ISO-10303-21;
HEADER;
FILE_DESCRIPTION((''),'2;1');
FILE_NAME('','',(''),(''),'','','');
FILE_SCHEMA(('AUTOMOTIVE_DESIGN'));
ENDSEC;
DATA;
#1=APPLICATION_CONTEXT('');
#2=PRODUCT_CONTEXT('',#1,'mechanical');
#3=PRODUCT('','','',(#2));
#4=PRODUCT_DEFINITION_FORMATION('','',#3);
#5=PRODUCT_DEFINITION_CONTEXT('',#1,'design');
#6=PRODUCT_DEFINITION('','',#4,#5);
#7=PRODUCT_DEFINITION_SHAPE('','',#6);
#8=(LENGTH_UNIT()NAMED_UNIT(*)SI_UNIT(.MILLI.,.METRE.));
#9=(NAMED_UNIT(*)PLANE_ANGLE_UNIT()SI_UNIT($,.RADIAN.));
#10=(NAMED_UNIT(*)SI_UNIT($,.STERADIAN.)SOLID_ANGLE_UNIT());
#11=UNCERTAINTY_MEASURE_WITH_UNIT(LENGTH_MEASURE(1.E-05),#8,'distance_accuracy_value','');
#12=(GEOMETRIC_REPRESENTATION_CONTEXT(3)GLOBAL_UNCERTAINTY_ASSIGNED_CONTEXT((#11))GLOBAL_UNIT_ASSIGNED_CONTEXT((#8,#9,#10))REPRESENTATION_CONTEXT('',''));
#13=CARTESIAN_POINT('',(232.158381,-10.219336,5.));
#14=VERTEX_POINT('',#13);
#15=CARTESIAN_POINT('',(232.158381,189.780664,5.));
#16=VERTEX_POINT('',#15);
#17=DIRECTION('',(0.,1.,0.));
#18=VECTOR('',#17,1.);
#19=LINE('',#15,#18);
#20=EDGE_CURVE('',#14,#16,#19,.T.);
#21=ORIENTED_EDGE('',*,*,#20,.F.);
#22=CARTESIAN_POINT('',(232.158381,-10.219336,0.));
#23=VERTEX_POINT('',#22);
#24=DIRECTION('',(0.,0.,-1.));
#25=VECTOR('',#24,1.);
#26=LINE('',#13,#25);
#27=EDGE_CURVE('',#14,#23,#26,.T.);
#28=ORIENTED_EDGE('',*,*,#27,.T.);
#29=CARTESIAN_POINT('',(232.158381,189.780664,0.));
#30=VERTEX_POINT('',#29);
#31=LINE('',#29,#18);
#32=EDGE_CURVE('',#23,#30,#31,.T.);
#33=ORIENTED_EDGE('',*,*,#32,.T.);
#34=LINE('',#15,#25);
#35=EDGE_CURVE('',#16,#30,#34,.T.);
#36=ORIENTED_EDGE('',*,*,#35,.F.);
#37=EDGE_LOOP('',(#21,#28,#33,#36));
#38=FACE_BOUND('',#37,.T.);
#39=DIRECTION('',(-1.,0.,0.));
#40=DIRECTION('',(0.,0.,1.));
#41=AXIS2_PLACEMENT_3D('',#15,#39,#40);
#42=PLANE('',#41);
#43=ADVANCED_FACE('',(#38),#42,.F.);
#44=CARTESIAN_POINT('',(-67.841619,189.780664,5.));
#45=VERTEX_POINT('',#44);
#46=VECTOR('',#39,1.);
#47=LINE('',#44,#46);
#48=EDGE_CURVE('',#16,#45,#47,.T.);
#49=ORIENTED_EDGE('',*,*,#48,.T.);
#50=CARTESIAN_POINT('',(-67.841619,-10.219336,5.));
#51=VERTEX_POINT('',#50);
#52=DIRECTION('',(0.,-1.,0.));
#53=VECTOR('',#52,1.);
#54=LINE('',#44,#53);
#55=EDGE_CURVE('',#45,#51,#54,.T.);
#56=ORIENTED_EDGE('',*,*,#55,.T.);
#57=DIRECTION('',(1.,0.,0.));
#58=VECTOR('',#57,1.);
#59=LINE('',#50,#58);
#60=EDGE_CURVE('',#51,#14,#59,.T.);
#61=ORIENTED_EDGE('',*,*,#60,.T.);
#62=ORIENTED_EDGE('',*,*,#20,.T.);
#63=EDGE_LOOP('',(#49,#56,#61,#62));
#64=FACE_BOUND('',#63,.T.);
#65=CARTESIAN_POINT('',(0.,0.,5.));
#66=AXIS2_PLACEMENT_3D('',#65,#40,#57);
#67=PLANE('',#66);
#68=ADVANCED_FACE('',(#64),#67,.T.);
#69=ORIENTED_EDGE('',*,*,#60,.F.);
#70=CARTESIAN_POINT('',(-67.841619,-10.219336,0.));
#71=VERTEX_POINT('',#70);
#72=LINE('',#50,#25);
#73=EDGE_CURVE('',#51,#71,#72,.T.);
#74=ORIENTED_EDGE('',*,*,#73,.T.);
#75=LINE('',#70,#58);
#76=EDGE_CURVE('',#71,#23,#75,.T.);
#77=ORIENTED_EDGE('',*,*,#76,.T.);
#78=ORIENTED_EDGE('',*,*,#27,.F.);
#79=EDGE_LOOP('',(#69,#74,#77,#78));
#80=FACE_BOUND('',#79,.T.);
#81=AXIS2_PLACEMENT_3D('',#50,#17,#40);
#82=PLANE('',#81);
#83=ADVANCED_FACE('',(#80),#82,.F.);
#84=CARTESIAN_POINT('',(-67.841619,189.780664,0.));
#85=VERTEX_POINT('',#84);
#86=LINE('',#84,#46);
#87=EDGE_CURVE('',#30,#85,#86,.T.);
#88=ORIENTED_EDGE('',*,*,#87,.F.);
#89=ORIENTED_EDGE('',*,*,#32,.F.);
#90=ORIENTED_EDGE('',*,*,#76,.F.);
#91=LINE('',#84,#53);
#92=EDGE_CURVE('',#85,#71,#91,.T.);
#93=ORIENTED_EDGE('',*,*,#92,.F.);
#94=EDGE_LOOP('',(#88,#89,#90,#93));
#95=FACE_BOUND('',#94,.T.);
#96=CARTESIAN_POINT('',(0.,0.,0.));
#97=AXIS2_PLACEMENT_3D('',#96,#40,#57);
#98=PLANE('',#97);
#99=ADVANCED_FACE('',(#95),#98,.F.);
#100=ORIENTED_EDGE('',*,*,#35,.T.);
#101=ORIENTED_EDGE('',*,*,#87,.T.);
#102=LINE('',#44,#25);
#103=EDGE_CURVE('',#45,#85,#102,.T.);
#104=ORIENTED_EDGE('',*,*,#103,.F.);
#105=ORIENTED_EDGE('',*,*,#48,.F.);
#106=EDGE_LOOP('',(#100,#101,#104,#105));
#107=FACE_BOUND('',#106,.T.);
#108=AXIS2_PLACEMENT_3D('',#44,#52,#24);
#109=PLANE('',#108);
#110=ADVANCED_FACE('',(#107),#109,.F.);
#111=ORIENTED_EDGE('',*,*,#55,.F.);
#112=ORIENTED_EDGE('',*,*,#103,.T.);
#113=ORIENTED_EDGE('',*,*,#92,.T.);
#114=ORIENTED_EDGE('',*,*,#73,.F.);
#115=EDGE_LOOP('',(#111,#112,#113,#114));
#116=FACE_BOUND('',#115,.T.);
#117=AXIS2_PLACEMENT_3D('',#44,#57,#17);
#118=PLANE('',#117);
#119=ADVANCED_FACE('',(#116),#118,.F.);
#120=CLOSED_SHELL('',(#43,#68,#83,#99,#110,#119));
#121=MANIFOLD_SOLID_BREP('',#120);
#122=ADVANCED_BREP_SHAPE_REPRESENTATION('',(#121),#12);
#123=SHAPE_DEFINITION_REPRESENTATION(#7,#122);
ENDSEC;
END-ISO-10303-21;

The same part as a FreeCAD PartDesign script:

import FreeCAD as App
import Part
import Sketcher
from FreeCAD import Vector
Q = App.Units.Quantity

doc = App.newDocument("Part")
params = doc.addObject("Spreadsheet::Sheet", "Params")
for row, (alias, value) in enumerate([
    ("sketch1_width", "300 mm"),
    ("sketch1_height", "200 mm"),
    ("pad1_length", "5 mm"),
], start=1):
    params.set(f"A{row}", alias)
    params.set(f"B{row}", "=" + value)
    params.setAlias(f"B{row}", alias)

body = doc.addObject("PartDesign::Body", "Body")

# Sketch on XY plane
sketch1 = body.newObject("Sketcher::SketchObject", "Sketch")
sketch1.AttachmentSupport = (doc.getObject("XY_Plane"), [""])
sketch1.MapMode = "FlatFace"
sketch1.addGeometry([
    Part.LineSegment(Vector(-67.841619, 189.780664, 0), Vector(-67.841619, -10.219336, 0)),
    Part.LineSegment(Vector(-67.841619, -10.219336, 0), Vector(232.158381, -10.219336, 0)),
    Part.LineSegment(Vector(232.158381, -10.219336, 0), Vector(232.158381, 189.780664, 0)),
    Part.LineSegment(Vector(232.158381, 189.780664, 0), Vector(-67.841619, 189.780664, 0)),
], False)
sketch1.addConstraint([
    Sketcher.Constraint("Coincident", 0, 2, 1, 1),
    Sketcher.Constraint("Coincident", 1, 2, 2, 1),
    Sketcher.Constraint("Coincident", 2, 2, 3, 1),
    Sketcher.Constraint("Coincident", 3, 2, 0, 1),
    Sketcher.Constraint("Vertical", 0),
    Sketcher.Constraint("Horizontal", 1),
    Sketcher.Constraint("Vertical", 2),
    Sketcher.Constraint("Horizontal", 3),
    Sketcher.Constraint("DistanceX", 1, 1, 1, 2, Q("300 mm")),
    Sketcher.Constraint("DistanceY", 0, 2, 0, 1, Q("200 mm")),
    Sketcher.Constraint("DistanceX", 0, 2, -1, 1, Q("67.841619 mm")),
    Sketcher.Constraint("DistanceY", 0, 2, -1, 1, Q("10.219336 mm")),
])
sketch1.setExpression("Constraints[8]", "Params.sketch1_width")
sketch1.setExpression("Constraints[9]", "Params.sketch1_height")
pad1 = body.newObject("PartDesign::Pad", "Pad")
pad1.Profile = sketch1
pad1.setExpression("Length", "Params.pad1_length")

doc.recompute()
